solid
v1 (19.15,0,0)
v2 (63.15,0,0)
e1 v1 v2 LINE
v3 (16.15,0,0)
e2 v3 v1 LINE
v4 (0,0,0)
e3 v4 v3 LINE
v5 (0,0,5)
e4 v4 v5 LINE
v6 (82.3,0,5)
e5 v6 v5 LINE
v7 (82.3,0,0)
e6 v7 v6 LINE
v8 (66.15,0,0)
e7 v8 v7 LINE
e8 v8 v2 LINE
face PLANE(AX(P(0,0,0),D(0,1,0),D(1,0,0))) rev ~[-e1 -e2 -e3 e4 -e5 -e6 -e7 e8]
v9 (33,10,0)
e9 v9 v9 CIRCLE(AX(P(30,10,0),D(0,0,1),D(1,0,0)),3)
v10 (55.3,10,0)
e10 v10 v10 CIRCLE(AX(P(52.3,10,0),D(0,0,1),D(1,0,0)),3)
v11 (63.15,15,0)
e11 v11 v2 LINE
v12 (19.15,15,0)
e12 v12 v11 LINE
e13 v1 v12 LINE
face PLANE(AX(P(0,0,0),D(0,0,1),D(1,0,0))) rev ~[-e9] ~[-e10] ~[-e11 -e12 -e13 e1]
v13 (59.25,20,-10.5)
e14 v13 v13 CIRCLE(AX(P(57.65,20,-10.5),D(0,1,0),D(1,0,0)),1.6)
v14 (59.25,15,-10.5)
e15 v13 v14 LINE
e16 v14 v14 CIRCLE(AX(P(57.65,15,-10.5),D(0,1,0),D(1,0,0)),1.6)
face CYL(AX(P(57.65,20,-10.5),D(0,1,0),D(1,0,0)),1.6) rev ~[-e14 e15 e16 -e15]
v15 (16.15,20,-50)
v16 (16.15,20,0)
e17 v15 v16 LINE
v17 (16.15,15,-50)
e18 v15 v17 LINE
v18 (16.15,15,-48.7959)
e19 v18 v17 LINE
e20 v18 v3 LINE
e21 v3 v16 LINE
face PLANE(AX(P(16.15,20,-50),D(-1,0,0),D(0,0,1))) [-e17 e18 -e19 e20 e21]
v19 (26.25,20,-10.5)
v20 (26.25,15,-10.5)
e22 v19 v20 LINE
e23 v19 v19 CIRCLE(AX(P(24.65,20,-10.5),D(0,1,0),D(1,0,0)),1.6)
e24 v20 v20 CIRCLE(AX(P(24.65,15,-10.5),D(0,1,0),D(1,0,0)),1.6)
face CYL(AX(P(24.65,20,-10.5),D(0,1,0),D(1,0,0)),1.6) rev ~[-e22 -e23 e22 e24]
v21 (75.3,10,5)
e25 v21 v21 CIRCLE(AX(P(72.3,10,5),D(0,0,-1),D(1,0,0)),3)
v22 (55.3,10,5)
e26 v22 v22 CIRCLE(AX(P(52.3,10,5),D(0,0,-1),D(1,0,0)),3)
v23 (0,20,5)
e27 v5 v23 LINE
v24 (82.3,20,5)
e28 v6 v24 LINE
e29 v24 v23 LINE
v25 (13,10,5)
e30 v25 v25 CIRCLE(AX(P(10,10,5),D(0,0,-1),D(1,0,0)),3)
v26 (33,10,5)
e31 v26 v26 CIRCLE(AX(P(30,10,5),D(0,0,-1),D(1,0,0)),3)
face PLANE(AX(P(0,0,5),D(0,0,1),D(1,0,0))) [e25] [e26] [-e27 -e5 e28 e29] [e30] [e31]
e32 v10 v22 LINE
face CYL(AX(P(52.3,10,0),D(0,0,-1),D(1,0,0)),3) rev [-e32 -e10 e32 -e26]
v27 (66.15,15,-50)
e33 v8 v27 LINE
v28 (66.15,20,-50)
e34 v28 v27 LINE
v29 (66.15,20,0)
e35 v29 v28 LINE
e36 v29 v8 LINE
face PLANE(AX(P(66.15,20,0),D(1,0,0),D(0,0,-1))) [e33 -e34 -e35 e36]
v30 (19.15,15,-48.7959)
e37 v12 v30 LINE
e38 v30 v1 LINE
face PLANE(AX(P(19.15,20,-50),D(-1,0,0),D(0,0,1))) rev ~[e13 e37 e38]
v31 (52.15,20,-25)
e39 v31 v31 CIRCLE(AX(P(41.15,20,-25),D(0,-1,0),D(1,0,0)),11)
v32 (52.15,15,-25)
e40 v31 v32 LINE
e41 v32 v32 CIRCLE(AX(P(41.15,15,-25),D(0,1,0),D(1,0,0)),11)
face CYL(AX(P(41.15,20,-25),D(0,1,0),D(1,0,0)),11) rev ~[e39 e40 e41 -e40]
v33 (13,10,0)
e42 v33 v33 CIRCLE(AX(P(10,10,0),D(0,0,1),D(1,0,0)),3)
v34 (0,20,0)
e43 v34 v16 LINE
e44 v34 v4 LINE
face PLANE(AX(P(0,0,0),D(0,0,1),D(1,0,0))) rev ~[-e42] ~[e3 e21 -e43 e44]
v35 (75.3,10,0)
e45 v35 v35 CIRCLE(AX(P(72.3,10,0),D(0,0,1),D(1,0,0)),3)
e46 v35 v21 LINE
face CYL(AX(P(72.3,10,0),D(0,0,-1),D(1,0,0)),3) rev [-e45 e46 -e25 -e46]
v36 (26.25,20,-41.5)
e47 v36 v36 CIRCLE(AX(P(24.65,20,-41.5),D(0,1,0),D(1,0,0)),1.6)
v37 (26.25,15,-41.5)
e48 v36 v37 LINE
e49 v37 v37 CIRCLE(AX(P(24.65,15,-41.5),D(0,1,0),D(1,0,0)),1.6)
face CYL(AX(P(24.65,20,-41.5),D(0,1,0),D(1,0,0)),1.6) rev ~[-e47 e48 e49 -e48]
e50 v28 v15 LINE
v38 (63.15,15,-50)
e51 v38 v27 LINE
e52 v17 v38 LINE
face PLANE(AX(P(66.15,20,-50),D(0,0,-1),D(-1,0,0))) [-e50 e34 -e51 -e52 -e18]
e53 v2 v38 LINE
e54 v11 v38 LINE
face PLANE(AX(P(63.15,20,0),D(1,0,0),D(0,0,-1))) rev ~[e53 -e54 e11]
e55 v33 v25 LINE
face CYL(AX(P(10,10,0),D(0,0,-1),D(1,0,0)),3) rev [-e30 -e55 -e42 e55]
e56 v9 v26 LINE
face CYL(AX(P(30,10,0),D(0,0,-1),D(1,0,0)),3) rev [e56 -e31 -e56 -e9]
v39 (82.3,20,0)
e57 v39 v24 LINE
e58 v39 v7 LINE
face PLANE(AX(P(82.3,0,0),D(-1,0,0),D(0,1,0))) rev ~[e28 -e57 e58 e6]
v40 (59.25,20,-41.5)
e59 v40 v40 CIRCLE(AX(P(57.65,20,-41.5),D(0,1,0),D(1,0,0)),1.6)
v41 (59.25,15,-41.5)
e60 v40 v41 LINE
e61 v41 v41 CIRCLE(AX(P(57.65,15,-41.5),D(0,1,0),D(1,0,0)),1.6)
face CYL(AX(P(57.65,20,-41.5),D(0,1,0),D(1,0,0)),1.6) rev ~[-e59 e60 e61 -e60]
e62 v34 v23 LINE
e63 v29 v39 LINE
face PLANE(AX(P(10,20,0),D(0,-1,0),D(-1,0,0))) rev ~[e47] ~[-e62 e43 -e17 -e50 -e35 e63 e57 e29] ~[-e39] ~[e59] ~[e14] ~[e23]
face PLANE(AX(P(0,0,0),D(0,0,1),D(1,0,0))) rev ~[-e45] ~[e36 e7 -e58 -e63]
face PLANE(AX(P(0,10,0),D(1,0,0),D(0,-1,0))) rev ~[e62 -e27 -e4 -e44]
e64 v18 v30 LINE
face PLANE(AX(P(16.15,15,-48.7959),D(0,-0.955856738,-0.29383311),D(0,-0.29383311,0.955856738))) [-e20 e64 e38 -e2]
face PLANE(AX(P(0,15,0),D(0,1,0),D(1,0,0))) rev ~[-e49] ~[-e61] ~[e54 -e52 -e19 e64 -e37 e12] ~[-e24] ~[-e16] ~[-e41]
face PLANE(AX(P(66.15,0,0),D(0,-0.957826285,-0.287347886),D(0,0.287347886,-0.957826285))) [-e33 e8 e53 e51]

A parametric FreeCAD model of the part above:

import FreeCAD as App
import Part
import Sketcher


def add_polygon(sketch, points):
    """Adds a closed chain of lines whose ends are joined by coincident constraints."""
    first, n = sketch.GeometryCount, len(points)
    for a, b in zip(points, points[1:] + points[:1]):
        sketch.addGeometry(Part.LineSegment(App.Vector(*a, 0), App.Vector(*b, 0)), False)
    for i in range(n):
        sketch.addConstraint(Sketcher.Constraint("Coincident", first + i, 2, first + (i + 1) % n, 1))

doc = App.newDocument("Part")
body = doc.addObject("PartDesign::Body", "Body")

# Sketch on XY plane
sketch1 = body.newObject("Sketcher::SketchObject", "Sketch")
sketch1.AttachmentSupport = (doc.getObject("XY_Plane"), [""])
sketch1.MapMode = "FlatFace"
add_polygon(sketch1, [(0, 0), (82.3, 0), (82.3, 20), (0, 20)])  # lines 0-3
sketch1.addGeometry(Part.Circle(App.Vector(10, 10, 0), App.Vector(0, 0, 1), 3), False)  # 4
sketch1.addGeometry(Part.Circle(App.Vector(30, 10, 0), App.Vector(0, 0, 1), 3), False)  # 5
sketch1.addGeometry(Part.Circle(App.Vector(52.3, 10, 0), App.Vector(0, 0, 1), 3), False)  # 6
sketch1.addGeometry(Part.Circle(App.Vector(72.3, 10, 0), App.Vector(0, 0, 1), 3), False)  # 7
sketch1.addConstraint([
    Sketcher.Constraint("Horizontal", 0),
    Sketcher.Constraint("Vertical", 1),
    Sketcher.Constraint("Horizontal", 2),
    Sketcher.Constraint("Vertical", 3),
    Sketcher.Constraint("Coincident", 3, 2, -1, 1),
    Sketcher.Constraint("Equal", 4, 5),
    Sketcher.Constraint("Equal", 5, 6),
    Sketcher.Constraint("Equal", 6, 7),
    Sketcher.Constraint("Horizontal", 4, 3, 5, 3),
    Sketcher.Constraint("Horizontal", 5, 3, 6, 3),
    Sketcher.Constraint("Horizontal", 6, 3, 7, 3),
    Sketcher.Constraint("Diameter", 4, 6.0),
    Sketcher.Constraint("DistanceY", 1, 1, 1, 2, 20.0),
    Sketcher.Constraint("DistanceX", 0, 1, 0, 2, 82.3),
    Sketcher.Constraint("DistanceX", -1, 1, 4, 3, 10.0),
    Sketcher.Constraint("DistanceY", -1, 1, 4, 3, 10.0),
    Sketcher.Constraint("DistanceX", 4, 3, 5, 3, 20.0),
    Sketcher.Constraint("DistanceX", 6, 3, 7, 3, 20.0),
    Sketcher.Constraint("DistanceX", 7, 3, 0, 2, 10.0),
])
pad1 = body.newObject("PartDesign::Pad", "Pad")
pad1.Profile = sketch1
pad1.Length = 5

# Sketch on XZ plane
sketch2 = body.newObject("Sketcher::SketchObject", "Sketch001")
sketch2.AttachmentSupport = (doc.getObject("XZ_Plane"), [""])
sketch2.MapMode = "FlatFace"
sketch2.AttachmentOffset = App.Placement(App.Vector(0, 0, -20), App.Rotation())
add_polygon(sketch2, [(66.2, 0), (66.2, -50), (16.1, -50), (16.1, 0)])  # lines 0-3
sketch2.addGeometry(Part.Circle(App.Vector(41.1, -25, 0), App.Vector(0, 0, 1), 11), False)  # 4
sketch2.addGeometry(Part.Circle(App.Vector(57.6, -10.5, 0), App.Vector(0, 0, 1), 1.6), False)  # 5
sketch2.addGeometry(Part.Circle(App.Vector(57.6, -41.5, 0), App.Vector(0, 0, 1), 1.6), False)  # 6
sketch2.addGeometry(Part.Circle(App.Vector(24.6, -41.5, 0), App.Vector(0, 0, 1), 1.6), False)  # 7
sketch2.addGeometry(Part.Circle(App.Vector(24.6, -10.5, 0), App.Vector(0, 0, 1), 1.6), False)  # 8
sketch2.addConstraint([
    Sketcher.Constraint("Vertical", 0),
    Sketcher.Constraint("Horizontal", 1),
    Sketcher.Constraint("Vertical", 2),
    Sketcher.Constraint("Horizontal", 3),
    Sketcher.Constraint("Equal", 5, 6),
    Sketcher.Constraint("Equal", 6, 7),
    Sketcher.Constraint("Equal", 7, 8),
    Sketcher.Constraint("PointOnObject", 2, 2, -1),
    Sketcher.Constraint("Horizontal", 6, 3, 7, 3),
    Sketcher.Constraint("Horizontal", 5, 3, 8, 3),
    Sketcher.Constraint("Vertical", 5, 3, 6, 3),
    Sketcher.Constraint("Vertical", 7, 3, 8, 3),
    Sketcher.Constraint("Equal", 3, 0),
    Sketcher.Constraint("Diameter", 4, 22.0),
    Sketcher.Constraint("Diameter", 5, 3.2),
    Sketcher.Constraint("DistanceX", 1, 2, 1, 1, 50.0),
    Sketcher.Constraint("DistanceY", 4, 3, -1, 1, 25.0),
    Sketcher.Constraint("DistanceX", 4, 3, 0, 2, 25.0),
    Sketcher.Constraint("DistanceX", 4, 3, 5, 3, 16.5),
    Sketcher.Constraint("DistanceY", 6, 3, 4, 3, 16.5),
    Sketcher.Constraint("DistanceX", 7, 3, 4, 3, 16.5),
    Sketcher.Constraint("DistanceY", 6, 3, 5, 3, 31.0),
    Sketcher.Constraint("DistanceX", -1, 1, 4, 3, 41.15),
])
pad2 = body.newObject("PartDesign::Pad", "Pad001")
pad2.Profile = sketch2
pad2.Length = 5

# Sketch on YZ plane
sketch3 = body.newObject("Sketcher::SketchObject", "Sketch002")
sketch3.AttachmentSupport = (doc.getObject("YZ_Plane"), [""])
sketch3.MapMode = "FlatFace"
sketch3.AttachmentOffset = App.Placement(App.Vector(0, 0, 16.15), App.Rotation())
add_polygon(sketch3, [(0, 0), (15, 0), (15, -49)])  # lines 0-2
sketch3.addConstraint([
    Sketcher.Constraint("Horizontal", 0),
    Sketcher.Constraint("Vertical", 1),
    Sketcher.Constraint("Coincident", 2, 2, -1, 1),
    Sketcher.Constraint("DistanceX", 0, 1, 0, 2, 15.0),
    Sketcher.Constraint("DistanceY", 1, 2, 1, 1, 48.796),
])
pad3 = body.newObject("PartDesign::Pad", "Pad002")
pad3.Profile = sketch3
pad3.Length = 3

# Sketch on YZ plane
sketch4 = body.newObject("Sketcher::SketchObject", "Sketch003")
sketch4.AttachmentSupport = (doc.getObject("YZ_Plane"), [""])
sketch4.MapMode = "FlatFace"
sketch4.AttachmentOffset = App.Placement(App.Vector(0, 0, 66.15), App.Rotation())
add_polygon(sketch4, [(0, 0), (15, -50), (15, 0)])  # lines 0-2
sketch4.addConstraint([
    Sketcher.Constraint("Vertical", 1),
    Sketcher.Constraint("Horizontal", 2),
    Sketcher.Constraint("Coincident", 2, 2, -1, 1),
    Sketcher.Constraint("DistanceX", 2, 2, 2, 1, 15.0),
    Sketcher.Constraint("DistanceY", 1, 1, 1, 2, 50.0),
])
pad4 = body.newObject("PartDesign::Pad", "Pad003")
pad4.Profile = sketch4
pad4.Length = 3
pad4.Reversed = True

doc.recompute()
